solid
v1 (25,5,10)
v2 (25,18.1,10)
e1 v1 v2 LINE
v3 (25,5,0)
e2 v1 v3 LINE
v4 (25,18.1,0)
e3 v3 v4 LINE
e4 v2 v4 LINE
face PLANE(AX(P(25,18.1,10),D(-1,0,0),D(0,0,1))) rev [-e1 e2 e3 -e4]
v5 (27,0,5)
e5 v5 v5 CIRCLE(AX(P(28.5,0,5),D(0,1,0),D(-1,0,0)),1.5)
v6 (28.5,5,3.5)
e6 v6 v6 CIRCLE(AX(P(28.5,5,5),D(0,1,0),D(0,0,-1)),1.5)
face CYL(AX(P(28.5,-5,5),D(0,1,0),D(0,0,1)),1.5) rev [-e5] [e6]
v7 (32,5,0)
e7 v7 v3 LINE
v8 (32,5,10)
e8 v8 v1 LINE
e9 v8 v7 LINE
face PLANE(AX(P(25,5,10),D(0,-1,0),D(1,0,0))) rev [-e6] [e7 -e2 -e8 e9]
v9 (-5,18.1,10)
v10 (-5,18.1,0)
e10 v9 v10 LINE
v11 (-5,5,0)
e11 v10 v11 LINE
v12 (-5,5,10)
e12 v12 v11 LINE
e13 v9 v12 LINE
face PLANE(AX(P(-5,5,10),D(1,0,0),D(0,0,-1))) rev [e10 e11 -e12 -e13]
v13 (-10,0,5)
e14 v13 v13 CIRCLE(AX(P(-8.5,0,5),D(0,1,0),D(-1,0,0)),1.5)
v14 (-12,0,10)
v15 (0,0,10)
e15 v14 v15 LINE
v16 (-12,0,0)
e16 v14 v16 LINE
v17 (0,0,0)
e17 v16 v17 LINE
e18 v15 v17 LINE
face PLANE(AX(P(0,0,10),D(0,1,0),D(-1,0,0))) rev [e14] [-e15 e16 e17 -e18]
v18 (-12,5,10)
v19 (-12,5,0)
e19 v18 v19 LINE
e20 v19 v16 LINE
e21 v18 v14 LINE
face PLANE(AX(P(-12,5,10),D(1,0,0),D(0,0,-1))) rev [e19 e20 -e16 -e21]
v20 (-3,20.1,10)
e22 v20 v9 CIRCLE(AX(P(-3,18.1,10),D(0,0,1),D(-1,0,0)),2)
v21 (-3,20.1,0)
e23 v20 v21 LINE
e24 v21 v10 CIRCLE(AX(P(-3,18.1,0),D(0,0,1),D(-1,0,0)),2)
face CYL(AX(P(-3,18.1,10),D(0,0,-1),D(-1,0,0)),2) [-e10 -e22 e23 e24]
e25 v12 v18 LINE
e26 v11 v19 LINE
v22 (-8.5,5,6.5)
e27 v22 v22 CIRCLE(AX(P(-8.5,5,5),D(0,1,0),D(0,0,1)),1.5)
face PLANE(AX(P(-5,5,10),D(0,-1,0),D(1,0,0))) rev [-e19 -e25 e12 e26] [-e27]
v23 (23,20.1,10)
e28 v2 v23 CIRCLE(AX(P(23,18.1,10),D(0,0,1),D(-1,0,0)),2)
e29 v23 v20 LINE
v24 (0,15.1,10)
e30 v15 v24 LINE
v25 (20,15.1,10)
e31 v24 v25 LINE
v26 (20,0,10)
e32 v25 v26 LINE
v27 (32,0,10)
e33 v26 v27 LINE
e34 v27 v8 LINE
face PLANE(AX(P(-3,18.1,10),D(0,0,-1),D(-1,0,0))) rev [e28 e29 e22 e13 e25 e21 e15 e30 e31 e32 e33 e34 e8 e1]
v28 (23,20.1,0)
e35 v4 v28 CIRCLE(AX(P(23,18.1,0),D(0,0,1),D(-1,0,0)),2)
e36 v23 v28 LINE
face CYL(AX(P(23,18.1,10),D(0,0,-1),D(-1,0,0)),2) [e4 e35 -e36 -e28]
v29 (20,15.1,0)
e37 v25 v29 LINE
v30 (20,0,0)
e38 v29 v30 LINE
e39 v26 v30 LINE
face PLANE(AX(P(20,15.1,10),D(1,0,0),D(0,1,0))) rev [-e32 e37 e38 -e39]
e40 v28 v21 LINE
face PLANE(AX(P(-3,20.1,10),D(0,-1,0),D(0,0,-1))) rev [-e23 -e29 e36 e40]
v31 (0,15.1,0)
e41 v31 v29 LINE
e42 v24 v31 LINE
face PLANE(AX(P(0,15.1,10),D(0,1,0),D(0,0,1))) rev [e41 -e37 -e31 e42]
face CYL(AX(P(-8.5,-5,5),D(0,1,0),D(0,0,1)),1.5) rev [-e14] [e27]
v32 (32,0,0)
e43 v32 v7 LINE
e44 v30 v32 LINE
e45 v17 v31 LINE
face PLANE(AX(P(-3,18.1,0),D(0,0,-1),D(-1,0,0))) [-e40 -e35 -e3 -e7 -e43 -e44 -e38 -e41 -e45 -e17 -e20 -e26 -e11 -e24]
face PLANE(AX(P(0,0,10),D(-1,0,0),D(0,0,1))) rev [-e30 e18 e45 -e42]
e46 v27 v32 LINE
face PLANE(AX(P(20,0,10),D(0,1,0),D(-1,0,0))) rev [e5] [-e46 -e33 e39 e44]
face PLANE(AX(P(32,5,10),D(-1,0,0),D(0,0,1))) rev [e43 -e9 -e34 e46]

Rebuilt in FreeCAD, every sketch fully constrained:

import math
import FreeCAD as App
import Part
import Sketcher
from FreeCAD import Vector
Q = App.Units.Quantity

doc = App.newDocument("Part")
body = doc.addObject("PartDesign::Body", "Body")

sketch1 = body.newObject("Sketcher::SketchObject", "Sketch")
sketch1.AttachmentSupport = (doc.getObject("XY_Plane"), [""])
sketch1.MapMode = "FlatFace"
sketch1.addGeometry(Part.LineSegment(Vector(0, 0, 0), Vector(0, 15.1, 0)), False)
sketch1.addGeometry(Part.LineSegment(Vector(0, 15.1, 0), Vector(20, 15.1, 0)), False)
sketch1.addGeometry(Part.LineSegment(Vector(20, 15.1, 0), Vector(20, 0, 0)), False)
sketch1.addGeometry(Part.LineSegment(Vector(20, 0, 0), Vector(32, 0, 0)), False)
sketch1.addGeometry(Part.LineSegment(Vector(32, 0, 0), Vector(32, 5, 0)), False)
sketch1.addGeometry(Part.LineSegment(Vector(32, 5, 0), Vector(25, 5, 0)), False)
sketch1.addGeometry(Part.LineSegment(Vector(25, 5, 0), Vector(25, 18.1, 0)), False)
sketch1.addGeometry(Part.ArcOfCircle(Part.Circle(Vector(23, 18.1, 0), Vector(0, 0, 1), 2), math.radians(0), math.radians(90)), False)
sketch1.addGeometry(Part.LineSegment(Vector(23, 20.1, 0), Vector(-3, 20.1, 0)), False)
sketch1.addGeometry(Part.ArcOfCircle(Part.Circle(Vector(-3, 18.1, 0), Vector(0, 0, 1), 2), math.radians(90), math.radians(180)), False)
sketch1.addGeometry(Part.LineSegment(Vector(-5, 18.1, 0), Vector(-5, 5, 0)), False)
sketch1.addGeometry(Part.LineSegment(Vector(-5, 5, 0), Vector(-12, 5, 0)), False)
sketch1.addGeometry(Part.LineSegment(Vector(-12, 5, 0), Vector(-12, 0, 0)), False)
sketch1.addGeometry(Part.LineSegment(Vector(-12, 0, 0), Vector(0, 0, 0)), False)
sketch1.addConstraint(Sketcher.Constraint("Coincident", 0, 2, 1, 1))
sketch1.addConstraint(Sketcher.Constraint("Coincident", 1, 2, 2, 1))
sketch1.addConstraint(Sketcher.Constraint("Coincident", 2, 2, 3, 1))
sketch1.addConstraint(Sketcher.Constraint("Coincident", 3, 2, 4, 1))
sketch1.addConstraint(Sketcher.Constraint("Coincident", 4, 2, 5, 1))
sketch1.addConstraint(Sketcher.Constraint("Coincident", 5, 2, 6, 1))
sketch1.addConstraint(Sketcher.Constraint("Tangent", 6, 2, 7, 1))
sketch1.addConstraint(Sketcher.Constraint("Tangent", 7, 2, 8, 1))
sketch1.addConstraint(Sketcher.Constraint("Tangent", 8, 2, 9, 1))
sketch1.addConstraint(Sketcher.Constraint("Tangent", 9, 2, 10, 1))
sketch1.addConstraint(Sketcher.Constraint("Coincident", 10, 2, 11, 1))
sketch1.addConstraint(Sketcher.Constraint("Coincident", 11, 2, 12, 1))
sketch1.addConstraint(Sketcher.Constraint("Coincident", 12, 2, 13, 1))
sketch1.addConstraint(Sketcher.Constraint("Coincident", 13, 2, 0, 1))
sketch1.addConstraint(Sketcher.Constraint("Vertical", 0))
sketch1.addConstraint(Sketcher.Constraint("Horizontal", 1))
sketch1.addConstraint(Sketcher.Constraint("Vertical", 2))
sketch1.addConstraint(Sketcher.Constraint("Horizontal", 3))
sketch1.addConstraint(Sketcher.Constraint("Vertical", 4))
sketch1.addConstraint(Sketcher.Constraint("Horizontal", 5))
sketch1.addConstraint(Sketcher.Constraint("Vertical", 6))
sketch1.addConstraint(Sketcher.Constraint("Horizontal", 8))
sketch1.addConstraint(Sketcher.Constraint("Vertical", 10))
sketch1.addConstraint(Sketcher.Constraint("Horizontal", 11))
sketch1.addConstraint(Sketcher.Constraint("Vertical", 12))
sketch1.addConstraint(Sketcher.Constraint("Horizontal", 13))
sketch1.addConstraint(Sketcher.Constraint("Coincident", 13, 2, -1, 1))
sketch1.addConstraint(Sketcher.Constraint("Equal", 7, 9))
sketch1.addConstraint(Sketcher.Constraint("PointOnObject", 2, 2, -1))
sketch1.addConstraint(Sketcher.Constraint("Horizontal", 5, 2, 10, 2))
sketch1.addConstraint(Sketcher.Constraint("Equal", 5, 11))
sketch1.addConstraint(Sketcher.Constraint("Equal", 3, 13))
sketch1.addConstraint(Sketcher.Constraint("Radius", 7, Q("2 mm")))
sketch1.addConstraint(Sketcher.Constraint("DistanceX", 1, 1, 1, 2, Q("20 mm")))
sketch1.addConstraint(Sketcher.Constraint("DistanceX", 3, 1, 3, 2, Q("12 mm")))
sketch1.addConstraint(Sketcher.Constraint("DistanceX", 5, 2, 5, 1, Q("7 mm")))
sketch1.addConstraint(Sketcher.Constraint("DistanceY", 4, 1, 4, 2, Q("5 mm")))
sketch1.addConstraint(Sketcher.Constraint("DistanceY", 0, 1, 0, 2, Q("15.1 mm")))
sketch1.addConstraint(Sketcher.Constraint("DistanceY", 6, 1, 6, 2, Q("13.1 mm")))
pad1 = body.newObject("PartDesign::Pad", "Pad")
pad1.Profile = sketch1
pad1.Length = 10

sketch2 = body.newObject("Sketcher::SketchObject", "Sketch001")
sketch2.AttachmentSupport = (doc.getObject("XZ_Plane"), [""])
sketch2.MapMode = "FlatFace"
sketch2.AttachmentOffset = App.Placement(Vector(0, 0, -5), App.Rotation())
sketch2.addGeometry(Part.Circle(Vector(-8.5, 5, 0), Vector(0, 0, 1), 1.5), False)
sketch2.addGeometry(Part.Circle(Vector(28.5, 5, 0), Vector(0, 0, 1), 1.5), False)
sketch2.addConstraint(Sketcher.Constraint("Equal", 0, 1))
sketch2.addConstraint(Sketcher.Constraint("Horizontal", 0, 3, 1, 3))
sketch2.addConstraint(Sketcher.Constraint("Diameter", 0, Q("3 mm")))
sketch2.addConstraint(Sketcher.Constraint("DistanceY", -1, 1, 0, 3, Q("5 mm")))
sketch2.addConstraint(Sketcher.Constraint("DistanceX", 0, 3, 1, 3, Q("37 mm")))
sketch2.addConstraint(Sketcher.Constraint("DistanceX", 0, 3, -1, 1, Q("8.5 mm")))
pocket1 = body.newObject("PartDesign::Pocket", "Pocket")
pocket1.Profile = sketch2
pocket1.Length = 10
pocket1.Reversed = True

doc.recompute()
